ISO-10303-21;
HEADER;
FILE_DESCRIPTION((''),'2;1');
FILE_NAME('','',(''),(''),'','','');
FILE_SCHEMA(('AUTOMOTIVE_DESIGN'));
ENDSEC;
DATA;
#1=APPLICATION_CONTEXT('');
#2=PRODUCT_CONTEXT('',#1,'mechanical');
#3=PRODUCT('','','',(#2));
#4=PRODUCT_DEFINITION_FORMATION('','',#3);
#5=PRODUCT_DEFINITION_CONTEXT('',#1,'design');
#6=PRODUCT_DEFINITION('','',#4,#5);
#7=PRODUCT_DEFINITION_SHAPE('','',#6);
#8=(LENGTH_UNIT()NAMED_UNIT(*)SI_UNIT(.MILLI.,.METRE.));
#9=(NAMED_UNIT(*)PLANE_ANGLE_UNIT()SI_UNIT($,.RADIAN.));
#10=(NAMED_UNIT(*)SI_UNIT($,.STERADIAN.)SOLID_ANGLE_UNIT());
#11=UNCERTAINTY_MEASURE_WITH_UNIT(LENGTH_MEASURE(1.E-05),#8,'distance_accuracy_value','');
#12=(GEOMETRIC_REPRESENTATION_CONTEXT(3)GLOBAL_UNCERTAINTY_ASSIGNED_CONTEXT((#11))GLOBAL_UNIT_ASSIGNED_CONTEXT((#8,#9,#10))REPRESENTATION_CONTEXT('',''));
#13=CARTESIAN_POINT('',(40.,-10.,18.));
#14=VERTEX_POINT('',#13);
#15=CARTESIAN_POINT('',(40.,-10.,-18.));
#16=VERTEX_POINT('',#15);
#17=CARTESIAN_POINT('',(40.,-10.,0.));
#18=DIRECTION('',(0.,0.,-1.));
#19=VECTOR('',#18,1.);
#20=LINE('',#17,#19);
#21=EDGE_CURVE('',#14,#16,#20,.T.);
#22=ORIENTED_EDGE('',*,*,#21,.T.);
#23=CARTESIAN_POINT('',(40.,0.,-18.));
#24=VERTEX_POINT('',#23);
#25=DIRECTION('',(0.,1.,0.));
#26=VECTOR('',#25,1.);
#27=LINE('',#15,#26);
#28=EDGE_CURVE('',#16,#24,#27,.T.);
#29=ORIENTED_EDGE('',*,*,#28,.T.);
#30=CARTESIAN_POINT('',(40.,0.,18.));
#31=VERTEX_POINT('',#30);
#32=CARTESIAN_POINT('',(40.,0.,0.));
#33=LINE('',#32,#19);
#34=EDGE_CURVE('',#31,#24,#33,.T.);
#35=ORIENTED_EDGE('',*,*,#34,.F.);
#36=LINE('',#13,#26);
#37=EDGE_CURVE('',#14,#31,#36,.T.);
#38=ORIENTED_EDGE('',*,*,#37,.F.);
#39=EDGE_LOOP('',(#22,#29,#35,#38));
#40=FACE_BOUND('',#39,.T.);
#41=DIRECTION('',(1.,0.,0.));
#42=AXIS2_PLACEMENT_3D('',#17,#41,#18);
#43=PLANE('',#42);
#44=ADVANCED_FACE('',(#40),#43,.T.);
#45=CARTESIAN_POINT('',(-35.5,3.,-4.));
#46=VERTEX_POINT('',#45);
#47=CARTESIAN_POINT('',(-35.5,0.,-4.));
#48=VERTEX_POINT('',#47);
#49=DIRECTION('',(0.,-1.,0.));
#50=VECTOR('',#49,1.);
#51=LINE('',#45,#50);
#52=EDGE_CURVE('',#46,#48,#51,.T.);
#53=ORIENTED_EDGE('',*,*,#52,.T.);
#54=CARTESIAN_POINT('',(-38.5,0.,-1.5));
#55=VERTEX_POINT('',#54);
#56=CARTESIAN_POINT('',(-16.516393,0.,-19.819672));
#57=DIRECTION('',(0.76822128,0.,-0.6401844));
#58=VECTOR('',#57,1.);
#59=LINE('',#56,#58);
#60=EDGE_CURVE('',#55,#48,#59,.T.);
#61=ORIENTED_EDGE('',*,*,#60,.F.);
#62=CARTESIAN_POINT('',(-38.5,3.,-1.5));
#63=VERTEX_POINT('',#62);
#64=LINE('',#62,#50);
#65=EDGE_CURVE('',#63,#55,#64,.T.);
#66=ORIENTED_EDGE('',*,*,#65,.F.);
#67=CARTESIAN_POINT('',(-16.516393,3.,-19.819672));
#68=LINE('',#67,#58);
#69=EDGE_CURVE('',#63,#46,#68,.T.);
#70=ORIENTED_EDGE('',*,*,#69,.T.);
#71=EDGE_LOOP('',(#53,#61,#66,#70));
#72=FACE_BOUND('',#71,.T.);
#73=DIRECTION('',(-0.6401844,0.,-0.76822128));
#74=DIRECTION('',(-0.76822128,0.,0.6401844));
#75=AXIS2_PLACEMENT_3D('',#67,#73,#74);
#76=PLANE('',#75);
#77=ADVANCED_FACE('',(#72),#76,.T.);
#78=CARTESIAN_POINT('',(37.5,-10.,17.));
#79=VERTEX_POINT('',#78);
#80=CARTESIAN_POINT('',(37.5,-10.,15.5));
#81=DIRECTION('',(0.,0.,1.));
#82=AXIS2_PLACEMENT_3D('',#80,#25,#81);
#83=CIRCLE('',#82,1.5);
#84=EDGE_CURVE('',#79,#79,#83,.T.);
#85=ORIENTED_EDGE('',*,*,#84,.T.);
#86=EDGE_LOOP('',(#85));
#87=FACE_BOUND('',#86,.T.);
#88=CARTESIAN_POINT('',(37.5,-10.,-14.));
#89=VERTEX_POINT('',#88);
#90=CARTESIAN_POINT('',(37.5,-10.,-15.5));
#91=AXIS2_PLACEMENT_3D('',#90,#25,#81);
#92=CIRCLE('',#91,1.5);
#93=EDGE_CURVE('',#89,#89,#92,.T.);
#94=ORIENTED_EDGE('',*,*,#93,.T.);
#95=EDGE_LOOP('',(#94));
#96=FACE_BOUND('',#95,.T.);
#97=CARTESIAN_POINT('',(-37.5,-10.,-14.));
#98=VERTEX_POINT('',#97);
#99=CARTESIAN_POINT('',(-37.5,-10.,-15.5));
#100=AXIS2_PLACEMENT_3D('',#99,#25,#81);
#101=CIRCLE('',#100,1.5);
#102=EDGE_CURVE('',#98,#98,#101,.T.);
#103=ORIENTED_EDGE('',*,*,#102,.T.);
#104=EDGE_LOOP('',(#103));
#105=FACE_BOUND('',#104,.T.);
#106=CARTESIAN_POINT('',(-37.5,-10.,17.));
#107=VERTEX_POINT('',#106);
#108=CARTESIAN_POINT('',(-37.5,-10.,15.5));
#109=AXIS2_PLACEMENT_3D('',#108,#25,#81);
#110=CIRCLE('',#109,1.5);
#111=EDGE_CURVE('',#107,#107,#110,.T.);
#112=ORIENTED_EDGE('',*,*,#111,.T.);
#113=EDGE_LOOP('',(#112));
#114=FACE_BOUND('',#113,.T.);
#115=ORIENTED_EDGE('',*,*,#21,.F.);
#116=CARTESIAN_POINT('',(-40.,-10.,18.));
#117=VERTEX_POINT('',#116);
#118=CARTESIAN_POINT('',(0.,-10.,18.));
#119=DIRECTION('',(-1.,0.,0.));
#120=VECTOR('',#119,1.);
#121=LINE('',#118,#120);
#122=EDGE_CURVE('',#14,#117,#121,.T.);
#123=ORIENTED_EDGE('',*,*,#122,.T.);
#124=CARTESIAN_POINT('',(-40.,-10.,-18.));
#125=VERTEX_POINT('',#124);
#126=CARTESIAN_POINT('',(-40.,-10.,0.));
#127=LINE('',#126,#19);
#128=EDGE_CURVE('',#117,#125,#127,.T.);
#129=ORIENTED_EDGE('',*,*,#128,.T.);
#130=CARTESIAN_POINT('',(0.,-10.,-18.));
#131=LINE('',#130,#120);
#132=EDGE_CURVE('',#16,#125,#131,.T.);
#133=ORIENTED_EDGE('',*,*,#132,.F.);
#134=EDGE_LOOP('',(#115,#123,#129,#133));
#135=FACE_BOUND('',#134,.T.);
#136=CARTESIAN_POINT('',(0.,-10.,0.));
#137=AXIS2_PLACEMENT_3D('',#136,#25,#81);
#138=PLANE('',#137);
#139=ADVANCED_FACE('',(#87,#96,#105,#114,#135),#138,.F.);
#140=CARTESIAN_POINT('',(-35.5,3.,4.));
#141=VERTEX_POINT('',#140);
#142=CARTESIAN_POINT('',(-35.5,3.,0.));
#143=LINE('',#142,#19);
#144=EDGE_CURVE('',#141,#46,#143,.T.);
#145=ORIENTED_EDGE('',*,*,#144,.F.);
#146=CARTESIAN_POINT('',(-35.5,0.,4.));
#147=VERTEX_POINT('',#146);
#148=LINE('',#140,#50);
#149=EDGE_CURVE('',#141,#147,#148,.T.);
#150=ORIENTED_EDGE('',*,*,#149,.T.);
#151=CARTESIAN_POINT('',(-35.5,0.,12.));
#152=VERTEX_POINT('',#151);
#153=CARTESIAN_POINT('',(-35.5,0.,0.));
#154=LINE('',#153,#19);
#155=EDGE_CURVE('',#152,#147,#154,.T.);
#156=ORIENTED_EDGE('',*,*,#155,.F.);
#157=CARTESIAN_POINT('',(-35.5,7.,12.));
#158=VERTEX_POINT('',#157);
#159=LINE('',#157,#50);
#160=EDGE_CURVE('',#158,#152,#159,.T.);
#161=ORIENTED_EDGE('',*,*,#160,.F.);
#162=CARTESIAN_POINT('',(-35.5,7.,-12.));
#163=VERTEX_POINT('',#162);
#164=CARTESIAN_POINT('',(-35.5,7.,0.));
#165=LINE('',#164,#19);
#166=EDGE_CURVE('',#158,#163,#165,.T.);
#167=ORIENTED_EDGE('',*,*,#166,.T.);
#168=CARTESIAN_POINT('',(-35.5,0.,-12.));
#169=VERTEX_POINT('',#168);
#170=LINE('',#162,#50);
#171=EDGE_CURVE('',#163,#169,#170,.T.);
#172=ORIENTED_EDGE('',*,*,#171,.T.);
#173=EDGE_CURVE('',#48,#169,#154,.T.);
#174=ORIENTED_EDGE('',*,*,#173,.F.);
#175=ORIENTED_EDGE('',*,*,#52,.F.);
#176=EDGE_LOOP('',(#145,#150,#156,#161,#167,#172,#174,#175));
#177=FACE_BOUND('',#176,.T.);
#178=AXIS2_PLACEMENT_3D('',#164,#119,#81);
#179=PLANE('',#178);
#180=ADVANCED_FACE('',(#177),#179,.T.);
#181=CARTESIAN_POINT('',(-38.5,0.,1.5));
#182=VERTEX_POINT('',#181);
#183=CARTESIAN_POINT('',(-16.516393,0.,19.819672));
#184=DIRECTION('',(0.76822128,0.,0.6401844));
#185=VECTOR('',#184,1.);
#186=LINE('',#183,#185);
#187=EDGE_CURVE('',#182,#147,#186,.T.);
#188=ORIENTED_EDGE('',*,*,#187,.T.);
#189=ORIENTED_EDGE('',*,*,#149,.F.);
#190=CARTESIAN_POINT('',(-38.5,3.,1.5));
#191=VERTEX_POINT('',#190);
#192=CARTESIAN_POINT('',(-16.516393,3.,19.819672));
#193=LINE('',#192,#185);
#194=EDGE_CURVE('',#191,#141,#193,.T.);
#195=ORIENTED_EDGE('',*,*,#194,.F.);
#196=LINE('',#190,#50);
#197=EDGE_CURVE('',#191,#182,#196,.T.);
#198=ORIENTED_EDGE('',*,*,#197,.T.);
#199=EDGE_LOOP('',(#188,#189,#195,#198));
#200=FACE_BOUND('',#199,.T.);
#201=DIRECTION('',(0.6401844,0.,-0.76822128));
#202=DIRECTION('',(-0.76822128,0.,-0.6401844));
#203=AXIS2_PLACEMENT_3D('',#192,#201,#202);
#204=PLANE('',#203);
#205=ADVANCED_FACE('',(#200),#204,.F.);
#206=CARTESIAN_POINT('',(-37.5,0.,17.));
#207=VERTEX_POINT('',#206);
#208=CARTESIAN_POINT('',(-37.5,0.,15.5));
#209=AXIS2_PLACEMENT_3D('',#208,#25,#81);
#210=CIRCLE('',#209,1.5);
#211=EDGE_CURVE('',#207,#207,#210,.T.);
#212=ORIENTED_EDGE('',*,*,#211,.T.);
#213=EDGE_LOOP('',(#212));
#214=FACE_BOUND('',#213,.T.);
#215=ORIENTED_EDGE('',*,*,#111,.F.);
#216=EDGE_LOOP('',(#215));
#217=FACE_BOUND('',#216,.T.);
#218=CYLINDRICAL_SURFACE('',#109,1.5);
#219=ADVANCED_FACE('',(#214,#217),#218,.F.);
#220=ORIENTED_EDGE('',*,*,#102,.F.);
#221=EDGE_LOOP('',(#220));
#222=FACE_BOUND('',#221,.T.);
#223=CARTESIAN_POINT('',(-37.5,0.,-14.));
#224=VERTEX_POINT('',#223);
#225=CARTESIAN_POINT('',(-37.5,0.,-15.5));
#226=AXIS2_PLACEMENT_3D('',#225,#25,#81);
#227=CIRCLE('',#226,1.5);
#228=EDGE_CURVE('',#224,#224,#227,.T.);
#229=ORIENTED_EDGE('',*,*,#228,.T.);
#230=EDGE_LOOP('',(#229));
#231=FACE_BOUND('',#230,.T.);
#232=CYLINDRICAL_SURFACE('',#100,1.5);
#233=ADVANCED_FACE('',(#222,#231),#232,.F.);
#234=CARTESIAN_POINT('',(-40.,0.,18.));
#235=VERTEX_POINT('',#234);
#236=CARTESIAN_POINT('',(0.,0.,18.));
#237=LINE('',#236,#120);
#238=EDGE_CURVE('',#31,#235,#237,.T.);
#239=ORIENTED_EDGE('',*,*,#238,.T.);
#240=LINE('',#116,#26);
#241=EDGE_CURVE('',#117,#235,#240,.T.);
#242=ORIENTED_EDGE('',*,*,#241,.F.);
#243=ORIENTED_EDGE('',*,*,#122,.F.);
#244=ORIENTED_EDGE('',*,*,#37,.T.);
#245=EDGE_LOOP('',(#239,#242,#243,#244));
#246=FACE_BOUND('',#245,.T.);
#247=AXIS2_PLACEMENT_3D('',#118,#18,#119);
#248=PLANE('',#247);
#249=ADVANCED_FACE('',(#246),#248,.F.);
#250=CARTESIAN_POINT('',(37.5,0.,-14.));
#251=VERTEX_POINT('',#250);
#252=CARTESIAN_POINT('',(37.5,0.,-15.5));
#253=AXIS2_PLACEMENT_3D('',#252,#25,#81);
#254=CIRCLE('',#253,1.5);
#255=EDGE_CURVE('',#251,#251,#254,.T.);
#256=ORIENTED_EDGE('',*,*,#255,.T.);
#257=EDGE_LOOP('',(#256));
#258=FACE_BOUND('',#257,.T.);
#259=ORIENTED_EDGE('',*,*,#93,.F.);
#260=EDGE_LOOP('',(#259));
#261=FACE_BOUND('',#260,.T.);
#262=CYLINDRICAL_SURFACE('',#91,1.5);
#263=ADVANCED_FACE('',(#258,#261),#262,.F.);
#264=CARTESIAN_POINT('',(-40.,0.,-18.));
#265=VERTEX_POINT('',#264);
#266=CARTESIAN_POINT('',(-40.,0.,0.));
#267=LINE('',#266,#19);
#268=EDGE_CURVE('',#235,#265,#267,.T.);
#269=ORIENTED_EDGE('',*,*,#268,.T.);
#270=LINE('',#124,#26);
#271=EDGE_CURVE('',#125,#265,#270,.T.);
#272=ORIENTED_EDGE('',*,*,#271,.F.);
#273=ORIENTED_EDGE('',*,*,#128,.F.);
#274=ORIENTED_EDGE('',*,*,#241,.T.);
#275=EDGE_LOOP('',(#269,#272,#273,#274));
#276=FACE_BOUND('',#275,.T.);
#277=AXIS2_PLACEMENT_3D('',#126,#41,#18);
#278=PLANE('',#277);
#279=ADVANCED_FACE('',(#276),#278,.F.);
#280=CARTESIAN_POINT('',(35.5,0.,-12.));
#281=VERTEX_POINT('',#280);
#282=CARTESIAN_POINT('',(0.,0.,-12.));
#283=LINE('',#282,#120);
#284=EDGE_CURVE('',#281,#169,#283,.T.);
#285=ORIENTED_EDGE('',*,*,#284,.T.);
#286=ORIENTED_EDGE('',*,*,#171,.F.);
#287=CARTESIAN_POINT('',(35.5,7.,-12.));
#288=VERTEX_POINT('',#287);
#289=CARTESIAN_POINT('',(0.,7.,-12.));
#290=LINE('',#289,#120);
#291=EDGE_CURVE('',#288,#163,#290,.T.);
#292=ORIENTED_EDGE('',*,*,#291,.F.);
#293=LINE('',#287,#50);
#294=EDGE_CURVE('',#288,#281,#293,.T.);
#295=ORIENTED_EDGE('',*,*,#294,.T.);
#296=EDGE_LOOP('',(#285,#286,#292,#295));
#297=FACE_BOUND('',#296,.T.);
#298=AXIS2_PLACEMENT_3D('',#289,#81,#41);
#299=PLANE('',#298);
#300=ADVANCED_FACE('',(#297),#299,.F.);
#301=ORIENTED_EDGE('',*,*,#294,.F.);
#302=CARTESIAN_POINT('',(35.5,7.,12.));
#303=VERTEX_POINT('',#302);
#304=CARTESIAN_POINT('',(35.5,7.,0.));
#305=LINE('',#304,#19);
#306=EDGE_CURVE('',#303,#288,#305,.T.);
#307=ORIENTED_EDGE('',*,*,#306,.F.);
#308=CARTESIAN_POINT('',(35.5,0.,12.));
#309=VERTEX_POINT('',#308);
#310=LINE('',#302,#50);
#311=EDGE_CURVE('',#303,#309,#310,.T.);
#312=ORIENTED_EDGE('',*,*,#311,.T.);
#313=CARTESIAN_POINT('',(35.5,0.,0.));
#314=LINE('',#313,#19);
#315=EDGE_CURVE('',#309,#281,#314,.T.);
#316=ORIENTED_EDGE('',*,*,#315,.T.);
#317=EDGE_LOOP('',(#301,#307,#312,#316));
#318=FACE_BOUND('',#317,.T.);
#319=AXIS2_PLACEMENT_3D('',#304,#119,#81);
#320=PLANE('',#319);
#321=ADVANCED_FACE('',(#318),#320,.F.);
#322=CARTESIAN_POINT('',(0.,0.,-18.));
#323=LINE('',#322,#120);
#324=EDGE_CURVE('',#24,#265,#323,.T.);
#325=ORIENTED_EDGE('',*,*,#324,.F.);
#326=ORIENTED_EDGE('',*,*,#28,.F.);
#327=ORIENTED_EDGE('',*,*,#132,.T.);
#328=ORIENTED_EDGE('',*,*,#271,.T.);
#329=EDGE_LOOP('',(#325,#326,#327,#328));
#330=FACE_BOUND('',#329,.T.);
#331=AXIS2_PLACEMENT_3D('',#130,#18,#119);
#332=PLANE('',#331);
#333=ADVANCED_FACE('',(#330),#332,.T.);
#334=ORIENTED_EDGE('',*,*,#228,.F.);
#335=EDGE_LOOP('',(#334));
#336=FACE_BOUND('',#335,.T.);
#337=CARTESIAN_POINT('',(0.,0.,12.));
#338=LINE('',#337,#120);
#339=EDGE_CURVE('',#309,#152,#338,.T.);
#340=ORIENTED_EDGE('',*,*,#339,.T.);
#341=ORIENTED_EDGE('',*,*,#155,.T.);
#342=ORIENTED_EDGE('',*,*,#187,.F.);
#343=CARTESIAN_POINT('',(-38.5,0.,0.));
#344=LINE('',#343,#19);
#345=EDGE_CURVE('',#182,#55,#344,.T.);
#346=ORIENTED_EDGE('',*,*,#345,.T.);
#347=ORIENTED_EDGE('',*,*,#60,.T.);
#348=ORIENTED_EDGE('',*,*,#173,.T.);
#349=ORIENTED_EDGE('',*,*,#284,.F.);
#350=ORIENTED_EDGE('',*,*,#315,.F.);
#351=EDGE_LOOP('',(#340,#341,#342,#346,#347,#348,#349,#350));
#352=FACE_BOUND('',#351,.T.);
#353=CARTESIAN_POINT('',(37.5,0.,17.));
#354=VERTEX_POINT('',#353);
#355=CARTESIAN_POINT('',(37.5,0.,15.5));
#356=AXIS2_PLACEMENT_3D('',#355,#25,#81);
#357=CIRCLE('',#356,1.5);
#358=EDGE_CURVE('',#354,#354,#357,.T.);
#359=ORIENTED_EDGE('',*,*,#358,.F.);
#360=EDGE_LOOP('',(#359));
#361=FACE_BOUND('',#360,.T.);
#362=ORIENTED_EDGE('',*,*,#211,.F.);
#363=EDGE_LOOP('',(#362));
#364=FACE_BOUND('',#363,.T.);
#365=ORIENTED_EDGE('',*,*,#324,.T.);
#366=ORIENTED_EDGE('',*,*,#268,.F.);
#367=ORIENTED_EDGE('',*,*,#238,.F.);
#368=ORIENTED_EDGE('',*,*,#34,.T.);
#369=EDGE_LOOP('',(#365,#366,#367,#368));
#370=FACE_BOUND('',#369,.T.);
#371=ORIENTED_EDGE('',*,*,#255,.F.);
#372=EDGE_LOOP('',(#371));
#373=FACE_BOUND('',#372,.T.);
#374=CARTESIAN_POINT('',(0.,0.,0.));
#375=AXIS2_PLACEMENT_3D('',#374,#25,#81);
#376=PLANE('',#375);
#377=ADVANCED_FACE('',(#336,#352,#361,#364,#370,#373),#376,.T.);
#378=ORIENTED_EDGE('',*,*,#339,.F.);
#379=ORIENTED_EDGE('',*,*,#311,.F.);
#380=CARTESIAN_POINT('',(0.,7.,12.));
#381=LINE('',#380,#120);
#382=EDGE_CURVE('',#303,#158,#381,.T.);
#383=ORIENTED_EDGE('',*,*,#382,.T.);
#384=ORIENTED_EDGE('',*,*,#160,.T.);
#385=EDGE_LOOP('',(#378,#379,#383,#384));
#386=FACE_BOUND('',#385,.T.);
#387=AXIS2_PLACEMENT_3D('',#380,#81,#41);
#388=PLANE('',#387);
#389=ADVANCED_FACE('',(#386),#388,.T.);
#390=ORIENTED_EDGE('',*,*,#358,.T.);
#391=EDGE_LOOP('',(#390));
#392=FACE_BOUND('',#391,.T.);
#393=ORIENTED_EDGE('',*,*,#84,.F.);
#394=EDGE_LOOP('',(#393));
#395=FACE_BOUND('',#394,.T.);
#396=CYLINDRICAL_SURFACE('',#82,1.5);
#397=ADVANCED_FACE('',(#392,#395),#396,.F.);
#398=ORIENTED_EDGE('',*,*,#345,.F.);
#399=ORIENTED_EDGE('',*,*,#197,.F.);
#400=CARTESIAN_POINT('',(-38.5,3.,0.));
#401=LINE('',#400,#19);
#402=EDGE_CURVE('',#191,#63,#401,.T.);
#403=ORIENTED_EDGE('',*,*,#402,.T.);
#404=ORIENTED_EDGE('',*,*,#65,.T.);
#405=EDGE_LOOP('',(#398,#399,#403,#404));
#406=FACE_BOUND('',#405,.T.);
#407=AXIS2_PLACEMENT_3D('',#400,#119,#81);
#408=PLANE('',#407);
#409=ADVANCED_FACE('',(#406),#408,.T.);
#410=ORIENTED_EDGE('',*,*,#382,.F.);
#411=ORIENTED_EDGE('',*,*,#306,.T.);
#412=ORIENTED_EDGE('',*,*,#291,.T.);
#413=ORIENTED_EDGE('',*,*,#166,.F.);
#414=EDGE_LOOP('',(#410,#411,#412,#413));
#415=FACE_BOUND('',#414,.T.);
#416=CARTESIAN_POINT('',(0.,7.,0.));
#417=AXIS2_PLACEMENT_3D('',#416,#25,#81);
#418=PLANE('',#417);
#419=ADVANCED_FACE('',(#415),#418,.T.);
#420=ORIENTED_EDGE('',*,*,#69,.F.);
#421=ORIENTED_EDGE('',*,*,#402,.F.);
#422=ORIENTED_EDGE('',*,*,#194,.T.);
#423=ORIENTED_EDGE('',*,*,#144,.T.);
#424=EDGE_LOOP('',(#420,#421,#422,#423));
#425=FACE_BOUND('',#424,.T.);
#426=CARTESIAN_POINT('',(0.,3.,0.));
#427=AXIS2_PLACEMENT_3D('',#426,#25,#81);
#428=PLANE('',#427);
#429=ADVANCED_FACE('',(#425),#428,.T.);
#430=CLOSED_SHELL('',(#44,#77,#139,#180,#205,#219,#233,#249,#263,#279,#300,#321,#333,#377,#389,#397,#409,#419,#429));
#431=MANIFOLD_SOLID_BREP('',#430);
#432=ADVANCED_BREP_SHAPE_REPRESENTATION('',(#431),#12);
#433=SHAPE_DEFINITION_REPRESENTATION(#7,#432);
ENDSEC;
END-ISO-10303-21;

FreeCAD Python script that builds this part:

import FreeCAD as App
import Part
import Sketcher

doc = App.newDocument("Part")
body = doc.addObject("PartDesign::Body", "Body")

# Sketch on XZ plane
sketch1 = doc.addObject("Sketcher::SketchObject", "Sketch")
body.addObject(sketch1)
sketch1.AttachmentSupport = (doc.XZ_Plane, [""])
sketch1.MapMode = "FlatFace"
sketch1.addGeometry(Part.LineSegment(App.Vector(-40, -18, 0), App.Vector(-40, 18, 0)), False)
sketch1.addGeometry(Part.LineSegment(App.Vector(-40, 18, 0), App.Vector(40, 18, 0)), False)
sketch1.addGeometry(Part.LineSegment(App.Vector(40, 18, 0), App.Vector(40, -18, 0)), False)
sketch1.addGeometry(Part.LineSegment(App.Vector(40, -18, 0), App.Vector(-40, -18, 0)), False)
sketch1.addGeometry(Part.Circle(App.Vector(-37.5, 15.5, 0), App.Vector(0, 0, 1), 1.5), False)
sketch1.addGeometry(Part.Circle(App.Vector(37.5, 15.5, 0), App.Vector(0, 0, 1), 1.5), False)
sketch1.addGeometry(Part.Circle(App.Vector(-37.5, -15.5, 0), App.Vector(0, 0, 1), 1.5), False)
sketch1.addGeometry(Part.Circle(App.Vector(37.5, -15.5, 0), App.Vector(0, 0, 1), 1.5), False)
sketch1.addConstraint(Sketcher.Constraint("Coincident", 0, 2, 1, 1))
sketch1.addConstraint(Sketcher.Constraint("Coincident", 1, 2, 2, 1))
sketch1.addConstraint(Sketcher.Constraint("Coincident", 2, 2, 3, 1))
sketch1.addConstraint(Sketcher.Constraint("Coincident", 3, 2, 0, 1))
sketch1.addConstraint(Sketcher.Constraint("Vertical", 0))
sketch1.addConstraint(Sketcher.Constraint("Horizontal", 1))
sketch1.addConstraint(Sketcher.Constraint("Vertical", 2))
sketch1.addConstraint(Sketcher.Constraint("Horizontal", 3))
sketch1.addConstraint(Sketcher.Constraint("Equal", 4, 5))
sketch1.addConstraint(Sketcher.Constraint("Equal", 5, 6))
sketch1.addConstraint(Sketcher.Constraint("Equal", 6, 7))
sketch1.addConstraint(Sketcher.Constraint("Symmetric", 5, 3, 6, 3, -1, 1))
sketch1.addConstraint(Sketcher.Constraint("Symmetric", 4, 3, 7, 3, -1, 1))
sketch1.addConstraint(Sketcher.Constraint("Symmetric", 0, 2, 2, 2, -1, 1))
sketch1.addConstraint(Sketcher.Constraint("Symmetric", 4, 3, 5, 3, -2))
sketch1.addConstraint(Sketcher.Constraint("Diameter", 4, 3.0))
sketch1.addConstraint(Sketcher.Constraint("DistanceX", 1, 1, 1, 2, 80.0))
sketch1.addConstraint(Sketcher.Constraint("DistanceY", 0, 1, 0, 2, 36.0))
sketch1.addConstraint(Sketcher.Constraint("DistanceX", 4, 3, 5, 3, 75.0))
sketch1.addConstraint(Sketcher.Constraint("DistanceY", 6, 3, 4, 3, 31.0))
pad1 = doc.addObject("PartDesign::Pad", "Pad")
body.addObject(pad1)
pad1.Profile = sketch1
pad1.Length = 10

# Sketch on XZ plane
sketch2 = doc.addObject("Sketcher::SketchObject", "Sketch001")
body.addObject(sketch2)
sketch2.AttachmentSupport = (doc.XZ_Plane, [""])
sketch2.MapMode = "FlatFace"
sketch2.addGeometry(Part.LineSegment(App.Vector(-36, -12, 0), App.Vector(-36, 12, 0)), False)
sketch2.addGeometry(Part.LineSegment(App.Vector(-36, 12, 0), App.Vector(36, 12, 0)), False)
sketch2.addGeometry(Part.LineSegment(App.Vector(36, 12, 0), App.Vector(36, -12, 0)), False)
sketch2.addGeometry(Part.LineSegment(App.Vector(36, -12, 0), App.Vector(-36, -12, 0)), False)
sketch2.addConstraint(Sketcher.Constraint("Coincident", 0, 2, 1, 1))
sketch2.addConstraint(Sketcher.Constraint("Coincident", 1, 2, 2, 1))
sketch2.addConstraint(Sketcher.Constraint("Coincident", 2, 2, 3, 1))
sketch2.addConstraint(Sketcher.Constraint("Coincident", 3, 2, 0, 1))
sketch2.addConstraint(Sketcher.Constraint("Vertical", 0))
sketch2.addConstraint(Sketcher.Constraint("Horizontal", 1))
sketch2.addConstraint(Sketcher.Constraint("Vertical", 2))
sketch2.addConstraint(Sketcher.Constraint("Horizontal", 3))
sketch2.addConstraint(Sketcher.Constraint("Symmetric", 0, 2, 2, 2, -1, 1))
sketch2.addConstraint(Sketcher.Constraint("DistanceX", 1, 1, 1, 2, 71.0))
sketch2.addConstraint(Sketcher.Constraint("DistanceY", 0, 1, 0, 2, 24.0))
pad2 = doc.addObject("PartDesign::Pad", "Pad001")
body.addObject(pad2)
pad2.Profile = sketch2
pad2.Length = 7
pad2.Reversed = True

# Sketch on XZ plane
sketch3 = doc.addObject("Sketcher::SketchObject", "Sketch002")
body.addObject(sketch3)
sketch3.AttachmentSupport = (doc.XZ_Plane, [""])
sketch3.MapMode = "FlatFace"
sketch3.addGeometry(Part.LineSegment(App.Vector(-38.5, 1.5, 0), App.Vector(-35.5, 4, 0)), False)
sketch3.addGeometry(Part.LineSegment(App.Vector(-35.5, 4, 0), App.Vector(-35.5, -4, 0)), False)
sketch3.addGeometry(Part.LineSegment(App.Vector(-35.5, -4, 0), App.Vector(-38.5, -1.5, 0)), False)
sketch3.addGeometry(Part.LineSegment(App.Vector(-38.5, -1.5, 0), App.Vector(-38.5, 1.5, 0)), False)
sketch3.addConstraint(Sketcher.Constraint("Coincident", 0, 2, 1, 1))
sketch3.addConstraint(Sketcher.Constraint("Coincident", 1, 2, 2, 1))
sketch3.addConstraint(Sketcher.Constraint("Coincident", 2, 2, 3, 1))
sketch3.addConstraint(Sketcher.Constraint("Coincident", 3, 2, 0, 1))
sketch3.addConstraint(Sketcher.Constraint("Vertical", 1))
sketch3.addConstraint(Sketcher.Constraint("Vertical", 3))
sketch3.addConstraint(Sketcher.Constraint("Equal", 0, 2))
sketch3.addConstraint(Sketcher.Constraint("DistanceY", 1, 2, 1, 1, 8.0))
sketch3.addConstraint(Sketcher.Constraint("DistanceY", 3, 1, 3, 2, 3.0))
sketch3.addConstraint(Sketcher.Constraint("DistanceY", -1, 1, 0, 2, 4.0))
sketch3.addConstraint(Sketcher.Constraint("DistanceX", 2, 2, 1, 2, 3.0))
sketch3.addConstraint(Sketcher.Constraint("DistanceX", 0, 2, -1, 1, 35.5))
pad3 = doc.addObject("PartDesign::Pad", "Pad002")
body.addObject(pad3)
pad3.Profile = sketch3
pad3.Length = 3
pad3.Reversed = True

doc.recompute()
